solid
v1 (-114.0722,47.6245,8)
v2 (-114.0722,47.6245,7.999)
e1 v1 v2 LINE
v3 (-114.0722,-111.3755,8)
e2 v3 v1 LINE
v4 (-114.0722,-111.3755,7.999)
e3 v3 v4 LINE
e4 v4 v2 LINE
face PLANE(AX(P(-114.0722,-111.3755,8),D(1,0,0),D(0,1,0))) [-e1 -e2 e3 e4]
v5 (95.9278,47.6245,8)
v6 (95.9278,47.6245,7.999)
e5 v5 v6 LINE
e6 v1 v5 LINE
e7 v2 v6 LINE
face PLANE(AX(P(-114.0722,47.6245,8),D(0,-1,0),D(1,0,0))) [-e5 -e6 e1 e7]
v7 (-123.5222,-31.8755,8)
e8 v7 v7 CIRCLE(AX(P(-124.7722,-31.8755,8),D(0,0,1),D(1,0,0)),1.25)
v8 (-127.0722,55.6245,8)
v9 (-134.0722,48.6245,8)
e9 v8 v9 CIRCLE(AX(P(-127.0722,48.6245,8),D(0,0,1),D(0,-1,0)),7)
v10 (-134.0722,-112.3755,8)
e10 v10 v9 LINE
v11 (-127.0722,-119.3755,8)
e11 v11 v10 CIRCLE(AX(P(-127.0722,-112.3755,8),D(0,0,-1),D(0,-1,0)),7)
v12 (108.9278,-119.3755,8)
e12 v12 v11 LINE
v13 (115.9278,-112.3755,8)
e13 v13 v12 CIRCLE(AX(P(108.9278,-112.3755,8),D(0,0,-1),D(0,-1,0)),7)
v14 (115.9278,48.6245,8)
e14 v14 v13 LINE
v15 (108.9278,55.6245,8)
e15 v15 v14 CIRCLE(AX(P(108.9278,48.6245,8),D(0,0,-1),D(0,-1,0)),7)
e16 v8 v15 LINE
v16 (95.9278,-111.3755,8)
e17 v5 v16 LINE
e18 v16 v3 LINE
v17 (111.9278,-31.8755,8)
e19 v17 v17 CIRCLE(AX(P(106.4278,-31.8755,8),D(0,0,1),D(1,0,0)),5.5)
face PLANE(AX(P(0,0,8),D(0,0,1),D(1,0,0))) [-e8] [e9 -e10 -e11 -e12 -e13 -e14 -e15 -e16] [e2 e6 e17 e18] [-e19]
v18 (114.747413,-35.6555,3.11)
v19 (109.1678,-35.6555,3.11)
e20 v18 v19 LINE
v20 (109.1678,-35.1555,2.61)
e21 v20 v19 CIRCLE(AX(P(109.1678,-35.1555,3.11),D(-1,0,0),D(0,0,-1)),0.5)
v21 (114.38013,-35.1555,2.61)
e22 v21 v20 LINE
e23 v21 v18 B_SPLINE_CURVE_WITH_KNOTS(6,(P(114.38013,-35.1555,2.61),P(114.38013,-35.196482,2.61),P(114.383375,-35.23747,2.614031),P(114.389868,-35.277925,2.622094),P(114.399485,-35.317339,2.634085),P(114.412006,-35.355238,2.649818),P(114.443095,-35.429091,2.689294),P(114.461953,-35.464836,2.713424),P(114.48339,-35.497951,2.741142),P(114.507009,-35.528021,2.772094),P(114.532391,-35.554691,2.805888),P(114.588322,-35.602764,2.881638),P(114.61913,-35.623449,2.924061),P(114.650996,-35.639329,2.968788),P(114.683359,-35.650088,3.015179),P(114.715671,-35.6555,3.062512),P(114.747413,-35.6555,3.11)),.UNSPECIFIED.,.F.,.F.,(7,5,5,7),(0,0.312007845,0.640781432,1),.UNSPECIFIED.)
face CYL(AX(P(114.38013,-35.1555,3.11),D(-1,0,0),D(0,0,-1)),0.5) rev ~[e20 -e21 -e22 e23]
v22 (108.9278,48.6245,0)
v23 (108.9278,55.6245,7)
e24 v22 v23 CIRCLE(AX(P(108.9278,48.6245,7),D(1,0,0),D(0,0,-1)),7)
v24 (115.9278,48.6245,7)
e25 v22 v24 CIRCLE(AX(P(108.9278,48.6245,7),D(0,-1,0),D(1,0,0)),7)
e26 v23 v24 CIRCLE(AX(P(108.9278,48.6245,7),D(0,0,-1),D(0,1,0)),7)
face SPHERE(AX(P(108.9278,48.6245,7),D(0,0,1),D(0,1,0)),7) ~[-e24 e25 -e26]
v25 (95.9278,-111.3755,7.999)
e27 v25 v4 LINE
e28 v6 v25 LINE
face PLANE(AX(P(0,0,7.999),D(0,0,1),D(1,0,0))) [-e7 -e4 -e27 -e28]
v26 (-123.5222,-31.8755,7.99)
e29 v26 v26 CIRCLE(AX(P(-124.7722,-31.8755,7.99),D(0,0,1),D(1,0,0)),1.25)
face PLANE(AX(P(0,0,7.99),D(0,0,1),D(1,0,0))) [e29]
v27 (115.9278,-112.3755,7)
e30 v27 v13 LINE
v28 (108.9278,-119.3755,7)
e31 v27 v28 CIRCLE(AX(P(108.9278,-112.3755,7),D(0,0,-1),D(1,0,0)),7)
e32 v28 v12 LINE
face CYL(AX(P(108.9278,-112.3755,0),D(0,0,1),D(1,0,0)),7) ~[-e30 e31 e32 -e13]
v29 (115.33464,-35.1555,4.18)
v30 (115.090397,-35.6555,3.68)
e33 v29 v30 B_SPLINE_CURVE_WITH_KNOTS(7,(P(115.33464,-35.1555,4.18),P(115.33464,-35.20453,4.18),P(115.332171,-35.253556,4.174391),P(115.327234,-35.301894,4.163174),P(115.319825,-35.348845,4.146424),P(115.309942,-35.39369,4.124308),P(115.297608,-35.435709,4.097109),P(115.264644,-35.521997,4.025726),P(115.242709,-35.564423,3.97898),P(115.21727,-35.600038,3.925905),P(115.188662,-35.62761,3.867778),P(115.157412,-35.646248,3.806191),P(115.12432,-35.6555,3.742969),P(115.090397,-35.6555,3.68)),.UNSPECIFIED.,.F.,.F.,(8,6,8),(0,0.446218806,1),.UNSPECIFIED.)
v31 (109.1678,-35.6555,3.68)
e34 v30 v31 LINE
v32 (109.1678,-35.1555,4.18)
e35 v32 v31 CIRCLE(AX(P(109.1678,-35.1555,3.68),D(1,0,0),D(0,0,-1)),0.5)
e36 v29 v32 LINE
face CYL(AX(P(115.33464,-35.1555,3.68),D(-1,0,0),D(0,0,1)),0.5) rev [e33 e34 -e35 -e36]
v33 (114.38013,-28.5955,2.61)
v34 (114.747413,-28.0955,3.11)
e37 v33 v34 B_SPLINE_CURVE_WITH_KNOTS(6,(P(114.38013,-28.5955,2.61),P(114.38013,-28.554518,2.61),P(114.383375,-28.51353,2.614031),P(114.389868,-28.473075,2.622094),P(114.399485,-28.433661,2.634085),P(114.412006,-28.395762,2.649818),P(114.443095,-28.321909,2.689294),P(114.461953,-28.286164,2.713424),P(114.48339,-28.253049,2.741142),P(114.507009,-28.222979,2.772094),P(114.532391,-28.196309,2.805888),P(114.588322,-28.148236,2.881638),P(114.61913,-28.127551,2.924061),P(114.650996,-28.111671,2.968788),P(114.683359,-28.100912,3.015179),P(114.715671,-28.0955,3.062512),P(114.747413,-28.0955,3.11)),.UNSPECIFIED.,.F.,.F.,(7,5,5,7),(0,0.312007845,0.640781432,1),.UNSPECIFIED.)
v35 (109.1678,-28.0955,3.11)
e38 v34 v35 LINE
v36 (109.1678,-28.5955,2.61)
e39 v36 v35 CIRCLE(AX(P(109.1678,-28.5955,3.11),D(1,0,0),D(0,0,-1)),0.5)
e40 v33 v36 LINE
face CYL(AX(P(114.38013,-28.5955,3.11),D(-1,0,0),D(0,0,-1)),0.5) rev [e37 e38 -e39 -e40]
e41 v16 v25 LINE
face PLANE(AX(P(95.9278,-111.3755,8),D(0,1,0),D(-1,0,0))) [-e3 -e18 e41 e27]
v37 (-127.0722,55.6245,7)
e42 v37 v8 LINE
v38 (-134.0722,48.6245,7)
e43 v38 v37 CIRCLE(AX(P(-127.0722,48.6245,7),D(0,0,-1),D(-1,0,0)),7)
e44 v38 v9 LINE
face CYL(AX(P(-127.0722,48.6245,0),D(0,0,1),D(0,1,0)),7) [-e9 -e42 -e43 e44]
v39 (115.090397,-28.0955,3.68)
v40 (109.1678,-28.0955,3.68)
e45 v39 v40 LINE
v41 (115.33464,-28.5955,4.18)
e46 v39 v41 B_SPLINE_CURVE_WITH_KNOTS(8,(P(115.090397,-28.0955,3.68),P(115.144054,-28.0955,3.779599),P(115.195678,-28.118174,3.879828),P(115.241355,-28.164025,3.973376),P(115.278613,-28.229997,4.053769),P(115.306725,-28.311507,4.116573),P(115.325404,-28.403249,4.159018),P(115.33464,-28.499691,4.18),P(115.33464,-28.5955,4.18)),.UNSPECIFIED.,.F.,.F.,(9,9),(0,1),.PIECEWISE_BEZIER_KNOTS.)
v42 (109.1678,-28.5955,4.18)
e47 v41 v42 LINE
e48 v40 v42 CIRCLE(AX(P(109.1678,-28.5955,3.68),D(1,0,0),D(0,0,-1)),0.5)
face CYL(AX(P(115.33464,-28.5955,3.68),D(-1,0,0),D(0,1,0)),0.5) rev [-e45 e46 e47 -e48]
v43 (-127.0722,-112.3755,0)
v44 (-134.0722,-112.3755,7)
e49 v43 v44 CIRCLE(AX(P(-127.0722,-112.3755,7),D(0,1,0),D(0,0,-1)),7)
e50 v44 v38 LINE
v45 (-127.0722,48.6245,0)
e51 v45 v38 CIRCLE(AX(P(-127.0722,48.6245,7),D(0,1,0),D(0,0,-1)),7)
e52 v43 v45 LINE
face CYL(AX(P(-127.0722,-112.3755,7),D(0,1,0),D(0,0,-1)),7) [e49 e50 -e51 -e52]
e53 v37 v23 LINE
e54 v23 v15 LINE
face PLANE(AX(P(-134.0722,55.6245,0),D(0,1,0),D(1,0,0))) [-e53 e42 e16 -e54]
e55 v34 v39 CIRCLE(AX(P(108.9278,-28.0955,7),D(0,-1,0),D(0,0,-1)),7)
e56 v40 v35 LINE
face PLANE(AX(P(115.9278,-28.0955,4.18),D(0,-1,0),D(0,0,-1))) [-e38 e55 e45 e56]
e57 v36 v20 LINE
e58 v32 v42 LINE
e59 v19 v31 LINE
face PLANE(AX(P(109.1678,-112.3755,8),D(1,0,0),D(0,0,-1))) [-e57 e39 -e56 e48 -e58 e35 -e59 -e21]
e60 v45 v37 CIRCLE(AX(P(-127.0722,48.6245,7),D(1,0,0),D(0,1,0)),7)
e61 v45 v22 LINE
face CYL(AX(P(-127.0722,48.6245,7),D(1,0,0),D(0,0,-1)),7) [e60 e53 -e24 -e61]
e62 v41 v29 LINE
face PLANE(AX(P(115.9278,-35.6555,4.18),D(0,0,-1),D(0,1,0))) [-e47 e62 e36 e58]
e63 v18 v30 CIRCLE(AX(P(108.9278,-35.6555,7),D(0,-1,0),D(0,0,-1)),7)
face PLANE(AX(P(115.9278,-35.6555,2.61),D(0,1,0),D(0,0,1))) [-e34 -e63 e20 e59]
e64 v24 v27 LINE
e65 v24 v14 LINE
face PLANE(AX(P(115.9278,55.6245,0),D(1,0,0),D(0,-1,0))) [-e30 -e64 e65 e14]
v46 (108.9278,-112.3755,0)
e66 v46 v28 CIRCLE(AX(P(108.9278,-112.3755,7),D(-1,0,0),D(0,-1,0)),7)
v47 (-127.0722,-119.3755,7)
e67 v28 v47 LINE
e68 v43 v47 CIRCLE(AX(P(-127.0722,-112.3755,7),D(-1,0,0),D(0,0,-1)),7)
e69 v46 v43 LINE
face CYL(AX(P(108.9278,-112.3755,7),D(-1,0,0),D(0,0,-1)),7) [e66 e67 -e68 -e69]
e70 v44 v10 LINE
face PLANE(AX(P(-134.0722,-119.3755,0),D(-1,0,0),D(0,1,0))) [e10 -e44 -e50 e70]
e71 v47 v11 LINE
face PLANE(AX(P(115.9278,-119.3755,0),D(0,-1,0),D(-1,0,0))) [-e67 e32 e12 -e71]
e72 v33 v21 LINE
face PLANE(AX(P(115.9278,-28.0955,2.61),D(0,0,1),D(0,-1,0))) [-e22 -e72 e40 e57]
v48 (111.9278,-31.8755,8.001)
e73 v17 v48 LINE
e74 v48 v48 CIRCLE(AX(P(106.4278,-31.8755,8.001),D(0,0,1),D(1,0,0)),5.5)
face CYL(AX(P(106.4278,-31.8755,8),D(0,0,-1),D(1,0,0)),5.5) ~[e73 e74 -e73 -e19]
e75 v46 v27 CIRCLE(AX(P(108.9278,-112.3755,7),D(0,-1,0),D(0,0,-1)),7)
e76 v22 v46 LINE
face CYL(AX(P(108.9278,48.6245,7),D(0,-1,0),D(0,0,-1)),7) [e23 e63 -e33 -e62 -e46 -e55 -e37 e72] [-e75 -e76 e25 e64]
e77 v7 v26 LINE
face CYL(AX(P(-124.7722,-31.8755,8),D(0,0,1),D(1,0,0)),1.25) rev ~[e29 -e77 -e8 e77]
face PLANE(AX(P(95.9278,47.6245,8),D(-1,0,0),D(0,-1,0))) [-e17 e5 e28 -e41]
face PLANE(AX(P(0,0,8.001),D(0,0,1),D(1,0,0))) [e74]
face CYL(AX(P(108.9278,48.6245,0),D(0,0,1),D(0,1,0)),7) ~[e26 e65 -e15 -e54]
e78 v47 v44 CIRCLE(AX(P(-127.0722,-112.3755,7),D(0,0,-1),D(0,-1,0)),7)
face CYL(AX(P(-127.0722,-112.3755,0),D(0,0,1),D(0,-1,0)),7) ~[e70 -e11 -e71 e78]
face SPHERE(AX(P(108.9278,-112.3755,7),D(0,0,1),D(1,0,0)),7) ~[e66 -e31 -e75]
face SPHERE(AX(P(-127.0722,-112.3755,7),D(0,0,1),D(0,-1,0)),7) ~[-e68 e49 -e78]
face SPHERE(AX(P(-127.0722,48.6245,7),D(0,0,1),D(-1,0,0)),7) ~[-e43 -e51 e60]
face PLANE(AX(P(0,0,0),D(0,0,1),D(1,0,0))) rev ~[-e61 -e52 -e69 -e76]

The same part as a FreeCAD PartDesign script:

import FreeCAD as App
import Part
import Sketcher
Q = App.Units.Quantity


def edges_at(feature, points):
    """Names of the edges that pass closest to the given points."""
    edges = feature.Shape.Edges
    near = lambda p: min(range(len(edges)), key=lambda i: edges[i].distToShape(Part.Vertex(*p))[0])
    return sorted({f"Edge{near(p) + 1}" for p in points})


def add_polygon(sketch, points):
    """Adds a closed chain of lines whose ends are joined by coincident constraints."""
    first, n = sketch.GeometryCount, len(points)
    for a, b in zip(points, points[1:] + points[:1]):
        sketch.addGeometry(Part.LineSegment(App.Vector(*a, 0), App.Vector(*b, 0)), False)
    for i in range(n):
        sketch.addConstraint(Sketcher.Constraint("Coincident", first + i, 2, first + (i + 1) % n, 1))

doc = App.newDocument("Part")
body = doc.addObject("PartDesign::Body", "Body")

sketch1 = body.newObject("Sketcher::SketchObject", "Sketch")
sketch1.AttachmentSupport = (doc.getObject("XY_Plane"), [""])
sketch1.MapMode = "FlatFace"
add_polygon(sketch1, [(116, 56), (-134, 56), (-134, -119), (116, -119)])
sketch1.addConstraint([
    Sketcher.Constraint("Horizontal", 0),
    Sketcher.Constraint("Vertical", 1),
    Sketcher.Constraint("Horizontal", 2),
    Sketcher.Constraint("Vertical", 3),
    Sketcher.Constraint("DistanceX", 0, 2, 0, 1, Q("250 mm")),
    Sketcher.Constraint("DistanceY", 1, 2, 1, 1, Q("175 mm")),
    Sketcher.Constraint("DistanceX", 0, 2, -1, 1, Q("134.0722 mm")),
    Sketcher.Constraint("DistanceY", -1, 1, 0, 2, Q("55.6245 mm")),
])
pad1 = body.newObject("PartDesign::Pad", "Pad")
pad1.Profile = sketch1
pad1.Length = 8
doc.recompute()

fillet = body.newObject("PartDesign::Fillet", "Fillet")
fillet.Base = (pad1, edges_at(pad1, [
    (115.928, 55.624, 4),
    (-134.072, 55.624, 4),
    (-134.072, -119.376, 4),
    (115.928, -119.376, 4),
]))
fillet.Radius = 7
doc.recompute()

fillet2 = body.newObject("PartDesign::Fillet", "Fillet001")
fillet2.Base = (fillet, edges_at(fillet, [
    (-134.072, -31.875, 0),
    (-132.022, -117.325, 0),
    (-9.072, -119.376, 0),
    (113.877, -117.325, 0),
    (115.928, -31.875, 0),
    (113.877, 53.574, 0),
    (-9.072, 55.624, 0),
    (-132.022, 53.574, 0),
]))
fillet2.Radius = 7

sketch2 = body.newObject("Sketcher::SketchObject", "Sketch001")
sketch2.AttachmentSupport = (doc.getObject("XY_Plane"), [""])
sketch2.MapMode = "FlatFace"
sketch2.AttachmentOffset = App.Placement(App.Vector(0, 0, 8), App.Rotation())
add_polygon(sketch2, [(96, 48), (-114, 48), (-114, -111), (96, -111)])
sketch2.addConstraint([
    Sketcher.Constraint("Horizontal", 0),
    Sketcher.Constraint("Vertical", 1),
    Sketcher.Constraint("Horizontal", 2),
    Sketcher.Constraint("Vertical", 3),
    Sketcher.Constraint("DistanceX", 0, 2, 0, 1, Q("210 mm")),
    Sketcher.Constraint("DistanceY", 1, 2, 1, 1, Q("159 mm")),
    Sketcher.Constraint("DistanceX", 0, 2, -1, 1, Q("114.0722 mm")),
    Sketcher.Constraint("DistanceY", -1, 1, 0, 2, Q("47.6245 mm")),
])
pocket1 = body.newObject("PartDesign::Pocket", "Pocket")
pocket1.Profile = sketch2
pocket1.Length = 0.001

sketch3 = body.newObject("Sketcher::SketchObject", "Sketch002")
sketch3.AttachmentSupport = (doc.getObject("XY_Plane"), [""])
sketch3.MapMode = "FlatFace"
sketch3.AttachmentOffset = App.Placement(App.Vector(0, 0, 8), App.Rotation())
sketch3.addGeometry(Part.Circle(App.Vector(106, -32, 0), App.Vector(0, 0, 1), 6), False)
sketch3.addConstraint([
    Sketcher.Constraint("Diameter", 0, Q("11 mm")),
    Sketcher.Constraint("DistanceX", -1, 1, 0, 3, Q("106.4278 mm")),
    Sketcher.Constraint("DistanceY", 0, 3, -1, 1, Q("31.8755 mm")),
])
pad2 = body.newObject("PartDesign::Pad", "Pad001")
pad2.Profile = sketch3
pad2.Length = 0.001

sketch4 = body.newObject("Sketcher::SketchObject", "Sketch003")
sketch4.AttachmentSupport = (doc.getObject("YZ_Plane"), [""])
sketch4.MapMode = "FlatFace"
sketch4.AttachmentOffset = App.Placement(App.Vector(0, 0, 115.9278), App.Rotation())
add_polygon(sketch4, [(-35.7, 4.2), (-35.7, 2.6), (-28.1, 2.6), (-28.1, 4.2)])
sketch4.addConstraint([
    Sketcher.Constraint("Vertical", 0),
    Sketcher.Constraint("Horizontal", 1),
    Sketcher.Constraint("Vertical", 2),
    Sketcher.Constraint("Horizontal", 3),
    Sketcher.Constraint("DistanceX", 1, 1, 1, 2, Q("7.56 mm")),
    Sketcher.Constraint("DistanceY", 0, 2, 0, 1, Q("1.57 mm")),
    Sketcher.Constraint("DistanceY", -1, 1, 0, 2, Q("2.61 mm")),
    Sketcher.Constraint("DistanceX", 0, 2, -1, 1, Q("35.6555 mm")),
])
pocket2 = body.newObject("PartDesign::Pocket", "Pocket001")
pocket2.Profile = sketch4
pocket2.Length = 6.76
doc.recompute()

fillet3 = body.newObject("PartDesign::Fillet", "Fillet002")
fillet3.Base = (pocket2, edges_at(pocket2, [
    (112.251, -28.096, 4.18),
    (111.774, -28.096, 2.61),
    (112.251, -35.656, 4.18),
    (111.774, -35.656, 2.61),
]))
fillet3.Radius = 0.5

sketch5 = body.newObject("Sketcher::SketchObject", "Sketch004")
sketch5.AttachmentSupport = (doc.getObject("XY_Plane"), [""])
sketch5.MapMode = "FlatFace"
sketch5.AttachmentOffset = App.Placement(App.Vector(0, 0, 8), App.Rotation())
sketch5.addGeometry(Part.Circle(App.Vector(-124.8, -31.9, 0), App.Vector(0, 0, 1), 1.2), False)
sketch5.addConstraint([
    Sketcher.Constraint("Diameter", 0, Q("2.5 mm")),
    Sketcher.Constraint("DistanceX", 0, 3, -1, 1, Q("124.7722 mm")),
    Sketcher.Constraint("DistanceY", 0, 3, -1, 1, Q("31.8755 mm")),
])
pocket3 = body.newObject("PartDesign::Pocket", "Pocket002")
pocket3.Profile = sketch5
pocket3.Length = 0.01

doc.recompute()
